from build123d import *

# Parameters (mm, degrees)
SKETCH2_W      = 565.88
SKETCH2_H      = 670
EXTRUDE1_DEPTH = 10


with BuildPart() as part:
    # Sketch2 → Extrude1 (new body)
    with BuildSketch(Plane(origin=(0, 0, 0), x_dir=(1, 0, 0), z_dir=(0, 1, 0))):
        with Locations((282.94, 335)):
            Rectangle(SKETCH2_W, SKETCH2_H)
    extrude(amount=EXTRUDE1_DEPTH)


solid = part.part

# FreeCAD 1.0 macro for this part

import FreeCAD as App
import Part
import Sketcher
from FreeCAD import Vector

doc = App.newDocument("Part")
body = doc.addObject("PartDesign::Body", "Body")

# Sketch on XZ plane
sketch1 = body.newObject("Sketcher::SketchObject", "Sketch")
sketch1.AttachmentSupport = (doc.getObject("XZ_Plane"), [""])
sketch1.MapMode = "FlatFace"
sketch1.addGeometry([
    Part.LineSegment(Vector(0, -670, 0), Vector(0, 0, 0)),
    Part.LineSegment(Vector(0, 0, 0), Vector(565.88, 0, 0)),
    Part.LineSegment(Vector(565.88, 0, 0), Vector(565.88, -670, 0)),
    Part.LineSegment(Vector(565.88, -670, 0), Vector(0, -670, 0)),
], False)
sketch1.addConstraint([
    Sketcher.Constraint("Coincident", 0, 2, 1, 1),
    Sketcher.Constraint("Coincident", 1, 2, 2, 1),
    Sketcher.Constraint("Coincident", 2, 2, 3, 1),
    Sketcher.Constraint("Coincident", 3, 2, 0, 1),
    Sketcher.Constraint("Vertical", 0),
    Sketcher.Constraint("Horizontal", 1),
    Sketcher.Constraint("Vertical", 2),
    Sketcher.Constraint("Horizontal", 3),
    Sketcher.Constraint("Coincident", 0, 2, -1, 1),
    Sketcher.Constraint("DistanceY", 0, 1, 0, 2, 670.0),
    Sketcher.Constraint("DistanceX", 1, 1, 1, 2, 565.88),
])
pad1 = body.newObject("PartDesign::Pad", "Pad")
pad1.Profile = sketch1
pad1.Length = 10
pad1.Reversed = True

doc.recompute()
